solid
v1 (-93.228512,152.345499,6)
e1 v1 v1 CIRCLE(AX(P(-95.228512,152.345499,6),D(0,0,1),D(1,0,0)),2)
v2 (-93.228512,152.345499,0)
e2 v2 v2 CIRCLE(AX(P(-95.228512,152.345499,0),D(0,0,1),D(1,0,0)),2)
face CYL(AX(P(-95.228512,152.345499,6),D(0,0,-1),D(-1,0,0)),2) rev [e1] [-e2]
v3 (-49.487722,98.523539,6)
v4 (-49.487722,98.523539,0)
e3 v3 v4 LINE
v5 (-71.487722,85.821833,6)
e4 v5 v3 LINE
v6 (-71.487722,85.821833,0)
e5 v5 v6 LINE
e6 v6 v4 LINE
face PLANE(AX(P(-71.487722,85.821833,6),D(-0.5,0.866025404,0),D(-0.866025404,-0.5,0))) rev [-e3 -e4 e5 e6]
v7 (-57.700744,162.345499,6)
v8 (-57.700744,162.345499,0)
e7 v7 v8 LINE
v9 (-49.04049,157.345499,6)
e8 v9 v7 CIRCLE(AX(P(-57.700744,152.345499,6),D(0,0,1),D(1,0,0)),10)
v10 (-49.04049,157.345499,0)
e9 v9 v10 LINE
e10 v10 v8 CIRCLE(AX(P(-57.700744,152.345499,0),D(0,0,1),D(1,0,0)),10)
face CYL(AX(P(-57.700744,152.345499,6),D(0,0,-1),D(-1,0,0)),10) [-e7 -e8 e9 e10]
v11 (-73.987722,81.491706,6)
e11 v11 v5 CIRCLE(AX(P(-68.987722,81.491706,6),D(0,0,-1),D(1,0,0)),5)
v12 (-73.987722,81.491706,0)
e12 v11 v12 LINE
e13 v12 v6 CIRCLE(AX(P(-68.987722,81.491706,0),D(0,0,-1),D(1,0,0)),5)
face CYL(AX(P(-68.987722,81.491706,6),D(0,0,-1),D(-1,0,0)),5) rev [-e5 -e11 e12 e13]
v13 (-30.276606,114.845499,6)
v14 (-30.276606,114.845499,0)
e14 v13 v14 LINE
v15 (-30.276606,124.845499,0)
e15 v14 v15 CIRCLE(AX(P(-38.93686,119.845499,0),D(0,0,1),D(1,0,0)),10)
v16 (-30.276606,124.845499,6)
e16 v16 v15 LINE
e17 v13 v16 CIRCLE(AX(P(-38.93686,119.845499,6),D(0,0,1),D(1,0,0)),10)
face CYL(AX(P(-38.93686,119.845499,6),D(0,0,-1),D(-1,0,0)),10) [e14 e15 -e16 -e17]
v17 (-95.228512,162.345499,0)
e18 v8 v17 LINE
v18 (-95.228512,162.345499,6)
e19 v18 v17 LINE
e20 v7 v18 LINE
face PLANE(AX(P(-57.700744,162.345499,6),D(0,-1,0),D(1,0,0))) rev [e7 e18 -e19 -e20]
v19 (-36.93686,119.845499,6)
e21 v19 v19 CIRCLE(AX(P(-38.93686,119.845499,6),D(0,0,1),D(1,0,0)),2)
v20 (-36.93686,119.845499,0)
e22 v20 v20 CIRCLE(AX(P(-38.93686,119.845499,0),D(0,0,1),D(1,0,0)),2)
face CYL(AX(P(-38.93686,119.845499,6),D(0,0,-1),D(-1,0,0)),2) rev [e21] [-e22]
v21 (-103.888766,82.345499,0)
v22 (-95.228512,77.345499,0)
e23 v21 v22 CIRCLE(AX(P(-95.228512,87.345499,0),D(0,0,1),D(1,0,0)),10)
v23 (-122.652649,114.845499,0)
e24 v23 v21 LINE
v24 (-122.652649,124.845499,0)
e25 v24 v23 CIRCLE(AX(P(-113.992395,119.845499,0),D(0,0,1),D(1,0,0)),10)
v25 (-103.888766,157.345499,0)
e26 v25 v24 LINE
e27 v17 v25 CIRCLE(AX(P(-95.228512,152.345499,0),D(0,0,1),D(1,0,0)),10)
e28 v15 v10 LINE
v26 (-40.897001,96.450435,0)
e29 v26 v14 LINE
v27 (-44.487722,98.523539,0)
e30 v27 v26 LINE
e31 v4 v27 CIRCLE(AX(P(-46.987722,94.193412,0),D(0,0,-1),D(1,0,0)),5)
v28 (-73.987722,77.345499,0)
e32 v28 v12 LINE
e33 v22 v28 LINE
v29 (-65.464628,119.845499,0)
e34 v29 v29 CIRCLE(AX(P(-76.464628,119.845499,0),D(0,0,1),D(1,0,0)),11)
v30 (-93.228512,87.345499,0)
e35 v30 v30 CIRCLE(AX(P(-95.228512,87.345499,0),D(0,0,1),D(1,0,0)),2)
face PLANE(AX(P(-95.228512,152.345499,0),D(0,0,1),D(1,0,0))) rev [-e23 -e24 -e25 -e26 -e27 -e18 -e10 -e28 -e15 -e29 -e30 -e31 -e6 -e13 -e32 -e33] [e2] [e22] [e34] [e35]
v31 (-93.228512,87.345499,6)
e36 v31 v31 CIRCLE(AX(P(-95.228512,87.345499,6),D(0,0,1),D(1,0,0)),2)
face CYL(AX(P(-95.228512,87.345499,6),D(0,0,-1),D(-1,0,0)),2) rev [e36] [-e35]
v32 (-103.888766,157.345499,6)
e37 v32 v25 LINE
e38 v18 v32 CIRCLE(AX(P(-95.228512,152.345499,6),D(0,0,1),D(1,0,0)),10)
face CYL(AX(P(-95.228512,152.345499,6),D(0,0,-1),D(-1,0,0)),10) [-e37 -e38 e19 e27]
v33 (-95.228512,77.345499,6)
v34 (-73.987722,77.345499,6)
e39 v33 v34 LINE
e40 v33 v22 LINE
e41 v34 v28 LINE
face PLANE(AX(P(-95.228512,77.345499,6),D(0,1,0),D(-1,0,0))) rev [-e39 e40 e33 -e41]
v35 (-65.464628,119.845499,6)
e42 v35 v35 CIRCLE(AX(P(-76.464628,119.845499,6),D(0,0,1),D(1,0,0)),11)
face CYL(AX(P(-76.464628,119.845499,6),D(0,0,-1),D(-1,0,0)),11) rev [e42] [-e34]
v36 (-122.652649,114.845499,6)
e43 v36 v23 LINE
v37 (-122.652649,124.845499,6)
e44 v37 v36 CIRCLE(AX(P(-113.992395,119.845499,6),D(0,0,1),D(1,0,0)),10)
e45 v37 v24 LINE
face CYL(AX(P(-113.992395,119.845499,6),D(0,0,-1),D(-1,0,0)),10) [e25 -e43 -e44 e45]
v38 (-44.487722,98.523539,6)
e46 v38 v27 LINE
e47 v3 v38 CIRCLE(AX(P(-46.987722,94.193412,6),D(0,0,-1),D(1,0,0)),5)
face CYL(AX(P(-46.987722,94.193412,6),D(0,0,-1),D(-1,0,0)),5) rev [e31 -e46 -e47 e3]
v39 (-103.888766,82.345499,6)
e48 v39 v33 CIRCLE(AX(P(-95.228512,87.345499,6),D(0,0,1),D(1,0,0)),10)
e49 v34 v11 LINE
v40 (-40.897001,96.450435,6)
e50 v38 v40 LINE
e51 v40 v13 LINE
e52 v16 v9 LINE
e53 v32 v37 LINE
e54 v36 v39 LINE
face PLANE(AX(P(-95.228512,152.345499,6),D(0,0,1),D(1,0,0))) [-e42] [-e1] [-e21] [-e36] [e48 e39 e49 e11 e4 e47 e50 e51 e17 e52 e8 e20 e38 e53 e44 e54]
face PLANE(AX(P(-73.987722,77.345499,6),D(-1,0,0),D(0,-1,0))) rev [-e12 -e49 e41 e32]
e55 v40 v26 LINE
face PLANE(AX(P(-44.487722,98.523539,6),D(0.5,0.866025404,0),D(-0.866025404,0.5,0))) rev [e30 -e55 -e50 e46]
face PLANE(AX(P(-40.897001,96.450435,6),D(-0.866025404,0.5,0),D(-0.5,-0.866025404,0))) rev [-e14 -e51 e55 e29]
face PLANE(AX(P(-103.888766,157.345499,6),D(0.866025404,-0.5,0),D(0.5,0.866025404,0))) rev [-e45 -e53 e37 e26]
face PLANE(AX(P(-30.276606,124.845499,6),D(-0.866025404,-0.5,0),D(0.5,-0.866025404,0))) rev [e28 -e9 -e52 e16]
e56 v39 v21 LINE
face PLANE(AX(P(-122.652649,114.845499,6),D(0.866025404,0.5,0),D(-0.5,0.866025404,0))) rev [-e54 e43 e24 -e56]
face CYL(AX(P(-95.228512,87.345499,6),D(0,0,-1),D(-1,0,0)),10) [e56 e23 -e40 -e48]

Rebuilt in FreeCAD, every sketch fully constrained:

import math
import FreeCAD as App
import Part
import Sketcher

V = App.Vector
Q = App.Units.Quantity

doc = App.newDocument("Part")
body = doc.addObject("PartDesign::Body", "Body")

sketch1 = doc.addObject("Sketcher::SketchObject", "Sketch")
body.addObject(sketch1)
sketch1.AttachmentSupport = (doc.XY_Plane, [""])
sketch1.MapMode = "FlatFace"
sketch1.addGeometry([
    Part.LineSegment(V(-57.7, 162.3, 0), V(-95.2, 162.3, 0)),
    Part.ArcOfCircle(Part.Circle(V(-95.2, 152.3, 0), V(0, 0, 1), 10), math.radians(90), math.radians(150)),
    Part.LineSegment(V(-103.9, 157.3, 0), V(-122.7, 124.8, 0)),
    Part.ArcOfCircle(Part.Circle(V(-114, 119.8, 0), V(0, 0, 1), 10), math.radians(150), math.radians(210)),
    Part.LineSegment(V(-122.7, 114.8, 0), V(-103.9, 82.3, 0)),
    Part.ArcOfCircle(Part.Circle(V(-95.2, 87.3, 0), V(0, 0, 1), 10), math.radians(-150), math.radians(-90)),
    Part.LineSegment(V(-95.2, 77.3, 0), V(-74, 77.3, 0)),
    Part.LineSegment(V(-74, 77.3, 0), V(-74, 81.5, 0)),
    Part.ArcOfCircle(Part.Circle(V(-69, 81.5, 0), V(0, 0, 1), 5), math.radians(120), math.radians(180)),
    Part.LineSegment(V(-71.5, 85.8, 0), V(-49.5, 98.5, 0)),
    Part.ArcOfCircle(Part.Circle(V(-47, 94.2, 0), V(0, 0, 1), 5), math.radians(60), math.radians(120)),
    Part.LineSegment(V(-44.5, 98.5, 0), V(-40.9, 96.5, 0)),
    Part.LineSegment(V(-40.9, 96.5, 0), V(-30.3, 114.8, 0)),
    Part.ArcOfCircle(Part.Circle(V(-38.9, 119.8, 0), V(0, 0, 1), 10), math.radians(-30), math.radians(30)),
    Part.LineSegment(V(-30.3, 124.8, 0), V(-49, 157.3, 0)),
    Part.ArcOfCircle(Part.Circle(V(-57.7, 152.3, 0), V(0, 0, 1), 10), math.radians(30), math.radians(90)),
    Part.Circle(V(-95.2, 87.3, 0), V(0, 0, 1), 2),
    Part.Circle(V(-76.5, 119.8, 0), V(0, 0, 1), 11),
    Part.Circle(V(-95.2, 152.3, 0), V(0, 0, 1), 2),
    Part.Circle(V(-38.9, 119.8, 0), V(0, 0, 1), 2),
], False)
sketch1.addConstraint([
    Sketcher.Constraint("Tangent", 0, 2, 1, 1),
    Sketcher.Constraint("Tangent", 1, 2, 2, 1),
    Sketcher.Constraint("Tangent", 2, 2, 3, 1),
    Sketcher.Constraint("Tangent", 3, 2, 4, 1),
    Sketcher.Constraint("Tangent", 4, 2, 5, 1),
    Sketcher.Constraint("Tangent", 5, 2, 6, 1),
    Sketcher.Constraint("Coincident", 6, 2, 7, 1),
    Sketcher.Constraint("Tangent", 7, 2, 8, 2),
    Sketcher.Constraint("Tangent", 8, 1, 9, 1),
    Sketcher.Constraint("Tangent", 9, 2, 10, 2),
    Sketcher.Constraint("Tangent", 10, 1, 11, 1),
    Sketcher.Constraint("Coincident", 11, 2, 12, 1),
    Sketcher.Constraint("Tangent", 12, 2, 13, 1),
    Sketcher.Constraint("Tangent", 13, 2, 14, 1),
    Sketcher.Constraint("Tangent", 14, 2, 15, 1),
    Sketcher.Constraint("Tangent", 15, 2, 0, 1),
    Sketcher.Constraint("Horizontal", 0),
    Sketcher.Constraint("Horizontal", 6),
    Sketcher.Constraint("Vertical", 7),
    Sketcher.Constraint("Coincident", 16, 3, 5, 3),
    Sketcher.Constraint("Coincident", 18, 3, 1, 3),
    Sketcher.Constraint("Coincident", 19, 3, 13, 3),
    Sketcher.Constraint("Equal", 1, 3),
    Sketcher.Constraint("Equal", 3, 5),
    Sketcher.Constraint("Equal", 8, 10),
    Sketcher.Constraint("Equal", 5, 13),
    Sketcher.Constraint("Equal", 13, 15),
    Sketcher.Constraint("Equal", 16, 18),
    Sketcher.Constraint("Equal", 18, 19),
    Sketcher.Constraint("Perpendicular", 4, 9),
    Sketcher.Constraint("Perpendicular", 2, 11),
    Sketcher.Constraint("Perpendicular", 11, 12),
    Sketcher.Constraint("Perpendicular", 9, 14),
    Sketcher.Constraint("Horizontal", 3, 3, 13, 3),
    Sketcher.Constraint("Horizontal", 13, 3, 17, 3),
    Sketcher.Constraint("Horizontal", 9, 2, 10, 1),
    Sketcher.Constraint("Vertical", 1, 3, 5, 3),
    Sketcher.Constraint("Diameter", 16, Q("4 mm")),
    Sketcher.Constraint("Diameter", 17, Q("22 mm")),
    Sketcher.Constraint("Radius", 1, Q("10 mm")),
    Sketcher.Constraint("Radius", 8, Q("5 mm")),
    Sketcher.Constraint("Angle", 2, Q("-120 deg")),
    Sketcher.Constraint("DistanceY", 5, 3, 1, 3, Q("65 mm")),
    Sketcher.Constraint("DistanceX", 8, 3, 10, 3, Q("22 mm")),
    Sketcher.Constraint("DistanceX", 11, 2, -1, 1, Q("40.897001 mm")),
    Sketcher.Constraint("DistanceX", 6, 1, 6, 2, Q("21.24079 mm")),
    Sketcher.Constraint("DistanceY", -1, 1, 1, 3, Q("152.345499 mm")),
    Sketcher.Constraint("Distance", 12, Q("21.24079 mm")),
    Sketcher.Constraint("DistanceX", 0, 2, 0, 1, Q("37.527767 mm")),
    Sketcher.Constraint("DistanceX", 17, 3, -1, 1, Q("76.464628 mm")),
])
pad1 = doc.addObject("PartDesign::Pad", "Pad")
body.addObject(pad1)
pad1.Profile = sketch1
pad1.Length = 6

doc.recompute()
